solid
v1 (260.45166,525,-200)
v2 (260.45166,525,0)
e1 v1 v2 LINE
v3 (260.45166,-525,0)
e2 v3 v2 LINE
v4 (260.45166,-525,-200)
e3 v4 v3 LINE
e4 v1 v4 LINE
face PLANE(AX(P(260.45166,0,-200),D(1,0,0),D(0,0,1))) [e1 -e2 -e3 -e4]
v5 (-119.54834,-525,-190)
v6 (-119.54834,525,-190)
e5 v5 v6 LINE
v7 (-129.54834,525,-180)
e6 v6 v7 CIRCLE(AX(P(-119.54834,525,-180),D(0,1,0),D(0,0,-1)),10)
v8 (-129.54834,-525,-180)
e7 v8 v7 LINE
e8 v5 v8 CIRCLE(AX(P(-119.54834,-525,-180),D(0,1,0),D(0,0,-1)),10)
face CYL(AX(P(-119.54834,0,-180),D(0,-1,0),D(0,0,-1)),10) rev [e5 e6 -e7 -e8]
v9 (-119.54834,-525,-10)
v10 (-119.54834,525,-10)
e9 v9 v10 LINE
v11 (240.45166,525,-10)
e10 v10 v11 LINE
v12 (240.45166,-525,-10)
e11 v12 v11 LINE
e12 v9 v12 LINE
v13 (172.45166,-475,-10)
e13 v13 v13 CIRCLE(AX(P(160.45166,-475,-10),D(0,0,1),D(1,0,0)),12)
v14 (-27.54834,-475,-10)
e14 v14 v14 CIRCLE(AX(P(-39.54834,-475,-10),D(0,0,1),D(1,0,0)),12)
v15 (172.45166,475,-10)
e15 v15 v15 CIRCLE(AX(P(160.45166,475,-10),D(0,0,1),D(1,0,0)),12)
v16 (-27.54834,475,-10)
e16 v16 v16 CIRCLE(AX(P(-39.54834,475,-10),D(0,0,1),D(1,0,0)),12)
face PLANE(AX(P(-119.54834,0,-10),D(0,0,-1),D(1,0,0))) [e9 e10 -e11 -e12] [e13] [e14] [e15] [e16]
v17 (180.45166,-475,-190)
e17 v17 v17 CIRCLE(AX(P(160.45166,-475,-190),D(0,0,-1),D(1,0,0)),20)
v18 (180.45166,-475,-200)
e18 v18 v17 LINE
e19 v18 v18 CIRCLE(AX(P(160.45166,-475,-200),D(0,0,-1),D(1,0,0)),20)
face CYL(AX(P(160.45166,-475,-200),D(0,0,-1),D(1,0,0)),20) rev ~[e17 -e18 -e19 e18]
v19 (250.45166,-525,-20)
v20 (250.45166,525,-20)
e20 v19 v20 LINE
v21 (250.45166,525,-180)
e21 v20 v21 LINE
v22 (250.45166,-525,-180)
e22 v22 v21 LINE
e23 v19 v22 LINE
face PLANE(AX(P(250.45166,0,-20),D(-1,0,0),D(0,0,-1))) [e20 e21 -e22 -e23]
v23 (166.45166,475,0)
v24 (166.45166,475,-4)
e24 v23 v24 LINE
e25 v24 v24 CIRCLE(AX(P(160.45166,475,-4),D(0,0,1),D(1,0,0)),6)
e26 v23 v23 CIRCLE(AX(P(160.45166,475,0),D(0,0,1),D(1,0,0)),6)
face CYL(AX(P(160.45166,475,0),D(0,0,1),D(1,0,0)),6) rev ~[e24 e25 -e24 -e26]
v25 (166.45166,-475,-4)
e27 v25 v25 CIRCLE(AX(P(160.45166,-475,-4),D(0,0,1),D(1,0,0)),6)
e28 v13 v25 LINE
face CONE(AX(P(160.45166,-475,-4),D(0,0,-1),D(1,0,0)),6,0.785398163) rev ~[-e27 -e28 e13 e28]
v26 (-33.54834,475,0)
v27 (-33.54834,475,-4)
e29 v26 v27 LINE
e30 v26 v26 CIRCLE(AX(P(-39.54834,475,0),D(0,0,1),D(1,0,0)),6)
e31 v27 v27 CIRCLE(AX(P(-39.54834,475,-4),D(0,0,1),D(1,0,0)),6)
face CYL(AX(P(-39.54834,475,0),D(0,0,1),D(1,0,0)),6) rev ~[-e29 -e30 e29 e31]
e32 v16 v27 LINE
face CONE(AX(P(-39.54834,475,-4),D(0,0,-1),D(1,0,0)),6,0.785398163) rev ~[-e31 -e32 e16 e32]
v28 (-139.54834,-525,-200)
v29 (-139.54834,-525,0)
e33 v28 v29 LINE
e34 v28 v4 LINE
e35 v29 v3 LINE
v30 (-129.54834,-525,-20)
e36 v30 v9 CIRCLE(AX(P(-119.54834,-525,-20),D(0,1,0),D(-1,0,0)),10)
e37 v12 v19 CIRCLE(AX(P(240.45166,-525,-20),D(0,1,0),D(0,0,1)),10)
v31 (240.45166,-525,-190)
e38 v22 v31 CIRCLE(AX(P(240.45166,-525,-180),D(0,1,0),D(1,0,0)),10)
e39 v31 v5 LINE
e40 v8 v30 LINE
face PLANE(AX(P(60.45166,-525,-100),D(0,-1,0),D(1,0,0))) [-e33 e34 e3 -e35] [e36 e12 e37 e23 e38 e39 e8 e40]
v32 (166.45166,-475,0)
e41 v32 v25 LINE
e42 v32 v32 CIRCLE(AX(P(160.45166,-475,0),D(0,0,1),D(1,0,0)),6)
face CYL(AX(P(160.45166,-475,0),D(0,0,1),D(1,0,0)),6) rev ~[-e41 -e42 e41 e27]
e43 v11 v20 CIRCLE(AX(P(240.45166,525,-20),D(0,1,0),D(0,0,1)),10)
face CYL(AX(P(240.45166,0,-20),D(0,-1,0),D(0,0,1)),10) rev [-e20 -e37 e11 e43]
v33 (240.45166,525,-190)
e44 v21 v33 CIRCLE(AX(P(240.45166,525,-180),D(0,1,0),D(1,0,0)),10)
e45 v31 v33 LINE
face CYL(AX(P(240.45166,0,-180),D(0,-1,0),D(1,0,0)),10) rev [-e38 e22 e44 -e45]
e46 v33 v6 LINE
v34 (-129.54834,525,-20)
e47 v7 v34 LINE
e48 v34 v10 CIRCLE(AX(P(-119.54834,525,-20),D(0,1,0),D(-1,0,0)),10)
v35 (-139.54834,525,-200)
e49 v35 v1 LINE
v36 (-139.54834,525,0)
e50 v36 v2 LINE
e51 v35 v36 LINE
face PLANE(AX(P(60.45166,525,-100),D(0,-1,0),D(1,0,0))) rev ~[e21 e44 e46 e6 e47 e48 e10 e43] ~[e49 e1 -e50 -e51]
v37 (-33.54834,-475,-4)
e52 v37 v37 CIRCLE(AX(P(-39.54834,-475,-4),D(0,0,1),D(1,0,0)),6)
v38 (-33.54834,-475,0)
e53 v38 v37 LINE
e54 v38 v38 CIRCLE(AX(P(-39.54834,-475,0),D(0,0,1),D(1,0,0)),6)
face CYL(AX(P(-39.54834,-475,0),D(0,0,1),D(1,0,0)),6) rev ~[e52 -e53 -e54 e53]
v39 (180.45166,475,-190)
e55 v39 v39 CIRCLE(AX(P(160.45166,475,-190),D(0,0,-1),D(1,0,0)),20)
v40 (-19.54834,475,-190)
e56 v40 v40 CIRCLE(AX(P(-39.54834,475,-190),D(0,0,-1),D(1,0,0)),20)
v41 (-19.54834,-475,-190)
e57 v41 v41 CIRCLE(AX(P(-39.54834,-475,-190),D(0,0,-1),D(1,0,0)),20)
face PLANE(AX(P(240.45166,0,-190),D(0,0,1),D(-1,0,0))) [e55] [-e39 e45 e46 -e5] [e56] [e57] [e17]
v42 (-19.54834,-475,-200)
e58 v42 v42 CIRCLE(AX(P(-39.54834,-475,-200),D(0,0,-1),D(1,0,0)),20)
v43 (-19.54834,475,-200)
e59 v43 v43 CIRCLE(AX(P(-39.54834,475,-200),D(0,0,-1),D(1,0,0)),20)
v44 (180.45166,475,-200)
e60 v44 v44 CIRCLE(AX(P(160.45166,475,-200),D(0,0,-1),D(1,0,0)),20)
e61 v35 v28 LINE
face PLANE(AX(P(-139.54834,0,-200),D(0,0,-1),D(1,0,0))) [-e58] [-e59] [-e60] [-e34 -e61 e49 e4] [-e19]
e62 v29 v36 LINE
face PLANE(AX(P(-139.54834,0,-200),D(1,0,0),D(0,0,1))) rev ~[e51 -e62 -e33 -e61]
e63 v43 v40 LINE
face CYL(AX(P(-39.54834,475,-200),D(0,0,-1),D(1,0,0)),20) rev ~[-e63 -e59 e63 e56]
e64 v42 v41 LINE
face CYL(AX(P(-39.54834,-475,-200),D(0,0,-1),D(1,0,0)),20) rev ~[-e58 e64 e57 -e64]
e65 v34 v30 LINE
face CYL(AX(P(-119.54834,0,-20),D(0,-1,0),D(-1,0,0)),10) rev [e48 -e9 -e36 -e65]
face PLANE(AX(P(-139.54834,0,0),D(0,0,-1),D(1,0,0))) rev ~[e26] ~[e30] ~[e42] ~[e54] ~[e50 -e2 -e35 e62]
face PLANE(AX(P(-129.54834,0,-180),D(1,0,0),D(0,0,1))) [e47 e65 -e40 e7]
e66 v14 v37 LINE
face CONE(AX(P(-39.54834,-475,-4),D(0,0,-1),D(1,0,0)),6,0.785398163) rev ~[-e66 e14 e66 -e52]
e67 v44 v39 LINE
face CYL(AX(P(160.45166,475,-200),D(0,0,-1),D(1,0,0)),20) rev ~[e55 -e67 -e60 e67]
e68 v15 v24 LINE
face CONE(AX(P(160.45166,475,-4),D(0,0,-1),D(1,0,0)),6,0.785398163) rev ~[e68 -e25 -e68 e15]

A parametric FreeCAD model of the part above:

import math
import FreeCAD as App
import Part
import Sketcher

V = App.Vector


def edges_at(feature, points):
    """Names of the edges that pass closest to the given points."""
    edges = feature.Shape.Edges
    near = lambda p: min(range(len(edges)), key=lambda i: edges[i].distToShape(Part.Vertex(*p))[0])
    return sorted({f"Edge{near(p) + 1}" for p in points})

doc = App.newDocument("Part")
body = doc.addObject("PartDesign::Body", "Body")

# Sketch on XZ plane
sketch1 = doc.addObject("Sketcher::SketchObject", "Sketch")
body.addObject(sketch1)
sketch1.AttachmentSupport = (doc.XZ_Plane, [""])
sketch1.MapMode = "FlatFace"
sketch1.addGeometry([
    Part.LineSegment(V(-139.54834, 0, 0), V(-139.54834, -200, 0)),  # 0
    Part.LineSegment(V(-139.54834, -200, 0), V(260.45166, -200, 0)),  # 1
    Part.LineSegment(V(260.45166, -200, 0), V(260.45166, 0, 0)),  # 2
    Part.LineSegment(V(260.45166, 0, 0), V(-139.54834, 0, 0)),  # 3
    Part.LineSegment(V(-129.54834, -180, 0), V(-129.54834, -20, 0)),  # 4
    Part.ArcOfCircle(Part.Circle(V(-119.54834, -20, 0), V(0, 0, 1), 10), math.radians(90), math.radians(180)),  # 5
    Part.LineSegment(V(-119.54834, -10, 0), V(240.45166, -10, 0)),  # 6
    Part.ArcOfCircle(Part.Circle(V(240.45166, -20, 0), V(0, 0, 1), 10), math.radians(0), math.radians(90)),  # 7
    Part.LineSegment(V(250.45166, -20, 0), V(250.45166, -180, 0)),  # 8
    Part.ArcOfCircle(Part.Circle(V(240.45166, -180, 0), V(0, 0, 1), 10), math.radians(-90), math.radians(0)),  # 9
    Part.LineSegment(V(240.45166, -190, 0), V(-119.54834, -190, 0)),  # 10
    Part.ArcOfCircle(Part.Circle(V(-119.54834, -180, 0), V(0, 0, 1), 10), math.radians(180), math.radians(270)),  # 11
], False)
sketch1.addConstraint([
    Sketcher.Constraint("Coincident", 0, 2, 1, 1),
    Sketcher.Constraint("Coincident", 1, 2, 2, 1),
    Sketcher.Constraint("Coincident", 2, 2, 3, 1),
    Sketcher.Constraint("Coincident", 3, 2, 0, 1),
    Sketcher.Constraint("Tangent", 4, 2, 5, 2),
    Sketcher.Constraint("Tangent", 5, 1, 6, 1),
    Sketcher.Constraint("Tangent", 6, 2, 7, 2),
    Sketcher.Constraint("Tangent", 7, 1, 8, 1),
    Sketcher.Constraint("Tangent", 8, 2, 9, 2),
    Sketcher.Constraint("Tangent", 9, 1, 10, 1),
    Sketcher.Constraint("Tangent", 10, 2, 11, 2),
    Sketcher.Constraint("Tangent", 11, 1, 4, 1),
    Sketcher.Constraint("Vertical", 0),
    Sketcher.Constraint("Horizontal", 1),
    Sketcher.Constraint("Vertical", 2),
    Sketcher.Constraint("Horizontal", 3),
    Sketcher.Constraint("Vertical", 4),
    Sketcher.Constraint("Horizontal", 6),
    Sketcher.Constraint("Vertical", 8),
    Sketcher.Constraint("Horizontal", 10),
    Sketcher.Constraint("Equal", 5, 7),
    Sketcher.Constraint("Equal", 7, 9),
    Sketcher.Constraint("Equal", 9, 11),
    Sketcher.Constraint("PointOnObject", 2, 2, -1),
    Sketcher.Constraint("Radius", 5, 10.0),
    Sketcher.Constraint("DistanceX", 1, 1, 1, 2, 400.0),
    Sketcher.Constraint("DistanceX", 6, 1, 6, 2, 360.0),
    Sketcher.Constraint("DistanceY", 0, 2, 0, 1, 200.0),
    Sketcher.Constraint("DistanceY", 4, 1, 4, 2, 160.0),
    Sketcher.Constraint("DistanceY", 5, 3, -1, 1, 20.0),
    Sketcher.Constraint("DistanceX", 0, 2, 11, 3, 20.0),
    Sketcher.Constraint("DistanceX", 5, 3, -1, 1, 119.54834),
])
pad1 = doc.addObject("PartDesign::Pad", "Pad")
body.addObject(pad1)
pad1.Profile = sketch1
pad1.Length = 1050
pad1.Midplane = True

# Sketch on XY plane
sketch2 = doc.addObject("Sketcher::SketchObject", "Sketch001")
body.addObject(sketch2)
sketch2.AttachmentSupport = (doc.XY_Plane, [""])
sketch2.MapMode = "FlatFace"
sketch2.addGeometry([
    Part.Circle(V(-39.54834, -475, 0), V(0, 0, 1), 6),
    Part.Circle(V(160.45166, -475, 0), V(0, 0, 1), 6),
    Part.Circle(V(-39.54834, 475, 0), V(0, 0, 1), 6),
    Part.Circle(V(160.45166, 475, 0), V(0, 0, 1), 6),
], False)
sketch2.addConstraint([
    Sketcher.Constraint("Equal", 0, 1),
    Sketcher.Constraint("Equal", 1, 2),
    Sketcher.Constraint("Equal", 2, 3),
    Sketcher.Constraint("Symmetric", 0, 3, 2, 3, -1),
    Sketcher.Constraint("Symmetric", 1, 3, 3, 3, -1),
    Sketcher.Constraint("Horizontal", 0, 3, 1, 3),
    Sketcher.Constraint("Diameter", 0, 12.0),
    Sketcher.Constraint("DistanceY", 0, 3, -1, 1, 475.0),
    Sketcher.Constraint("DistanceX", 0, 3, 1, 3, 200.0),
    Sketcher.Constraint("DistanceX", 0, 3, -1, 1, 39.54834),
])
pocket1 = doc.addObject("PartDesign::Pocket", "Pocket")
body.addObject(pocket1)
pocket1.Profile = sketch2
pocket1.Type = "ThroughAll"

# Sketch on XY plane
sketch3 = doc.addObject("Sketcher::SketchObject", "Sketch002")
body.addObject(sketch3)
sketch3.AttachmentSupport = (doc.XY_Plane, [""])
sketch3.MapMode = "FlatFace"
sketch3.AttachmentOffset = App.Placement(V(0, 0, -200), App.Rotation())
sketch3.addGeometry([
    Part.Circle(V(-39.54834, -475, 0), V(0, 0, 1), 20),
    Part.Circle(V(160.45166, -475, 0), V(0, 0, 1), 20),
    Part.Circle(V(-39.54834, 475, 0), V(0, 0, 1), 20),
    Part.Circle(V(160.45166, 475, 0), V(0, 0, 1), 20),
], False)
sketch3.addConstraint([
    Sketcher.Constraint("Equal", 0, 1),
    Sketcher.Constraint("Equal", 1, 2),
    Sketcher.Constraint("Equal", 2, 3),
    Sketcher.Constraint("Symmetric", 0, 3, 2, 3, -1),
    Sketcher.Constraint("Symmetric", 1, 3, 3, 3, -1),
    Sketcher.Constraint("Horizontal", 0, 3, 1, 3),
    Sketcher.Constraint("Diameter", 0, 40.0),
    Sketcher.Constraint("DistanceY", 0, 3, -1, 1, 475.0),
    Sketcher.Constraint("DistanceX", 0, 3, 1, 3, 200.0),
    Sketcher.Constraint("DistanceX", 0, 3, -1, 1, 39.54834),
])
pocket2 = doc.addObject("PartDesign::Pocket", "Pocket001")
body.addObject(pocket2)
pocket2.Profile = sketch3
pocket2.Length = 25
pocket2.Reversed = True
doc.recompute()

chamfer = doc.addObject("PartDesign::Chamfer", "Chamfer")
body.addObject(chamfer)
chamfer.Base = (pocket2, edges_at(pocket2, [
    (-45.548, -475, -10),
    (154.452, -475, -10),
    (-45.548, 475, -10),
    (154.452, 475, -10),
]))
chamfer.Size = 6

doc.recompute()
